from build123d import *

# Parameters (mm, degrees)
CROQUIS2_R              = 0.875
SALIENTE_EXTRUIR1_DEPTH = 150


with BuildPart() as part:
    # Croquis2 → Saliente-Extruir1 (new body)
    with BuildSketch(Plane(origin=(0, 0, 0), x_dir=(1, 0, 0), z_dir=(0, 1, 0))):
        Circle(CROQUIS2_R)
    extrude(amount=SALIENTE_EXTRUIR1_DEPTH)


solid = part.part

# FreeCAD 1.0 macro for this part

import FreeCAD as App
import Part
import Sketcher

V = App.Vector
Q = App.Units.Quantity

doc = App.newDocument("Part")
body = doc.addObject("PartDesign::Body", "Body")

# Sketch on XZ plane
sketch1 = body.newObject("Sketcher::SketchObject", "Sketch")
sketch1.AttachmentSupport = (doc.getObject("XZ_Plane"), [""])
sketch1.MapMode = "FlatFace"
sketch1.addGeometry(Part.Circle(V(0, 0, 0), V(0, 0, 1), 0.9), False)
sketch1.addConstraint([
    Sketcher.Constraint("Coincident", 0, 3, -1, 1),
    Sketcher.Constraint("Diameter", 0, Q("1.75 mm")),
])
pad1 = body.newObject("PartDesign::Pad", "Pad")
pad1.Profile = sketch1
pad1.Length = 150
pad1.Reversed = True

doc.recompute()
